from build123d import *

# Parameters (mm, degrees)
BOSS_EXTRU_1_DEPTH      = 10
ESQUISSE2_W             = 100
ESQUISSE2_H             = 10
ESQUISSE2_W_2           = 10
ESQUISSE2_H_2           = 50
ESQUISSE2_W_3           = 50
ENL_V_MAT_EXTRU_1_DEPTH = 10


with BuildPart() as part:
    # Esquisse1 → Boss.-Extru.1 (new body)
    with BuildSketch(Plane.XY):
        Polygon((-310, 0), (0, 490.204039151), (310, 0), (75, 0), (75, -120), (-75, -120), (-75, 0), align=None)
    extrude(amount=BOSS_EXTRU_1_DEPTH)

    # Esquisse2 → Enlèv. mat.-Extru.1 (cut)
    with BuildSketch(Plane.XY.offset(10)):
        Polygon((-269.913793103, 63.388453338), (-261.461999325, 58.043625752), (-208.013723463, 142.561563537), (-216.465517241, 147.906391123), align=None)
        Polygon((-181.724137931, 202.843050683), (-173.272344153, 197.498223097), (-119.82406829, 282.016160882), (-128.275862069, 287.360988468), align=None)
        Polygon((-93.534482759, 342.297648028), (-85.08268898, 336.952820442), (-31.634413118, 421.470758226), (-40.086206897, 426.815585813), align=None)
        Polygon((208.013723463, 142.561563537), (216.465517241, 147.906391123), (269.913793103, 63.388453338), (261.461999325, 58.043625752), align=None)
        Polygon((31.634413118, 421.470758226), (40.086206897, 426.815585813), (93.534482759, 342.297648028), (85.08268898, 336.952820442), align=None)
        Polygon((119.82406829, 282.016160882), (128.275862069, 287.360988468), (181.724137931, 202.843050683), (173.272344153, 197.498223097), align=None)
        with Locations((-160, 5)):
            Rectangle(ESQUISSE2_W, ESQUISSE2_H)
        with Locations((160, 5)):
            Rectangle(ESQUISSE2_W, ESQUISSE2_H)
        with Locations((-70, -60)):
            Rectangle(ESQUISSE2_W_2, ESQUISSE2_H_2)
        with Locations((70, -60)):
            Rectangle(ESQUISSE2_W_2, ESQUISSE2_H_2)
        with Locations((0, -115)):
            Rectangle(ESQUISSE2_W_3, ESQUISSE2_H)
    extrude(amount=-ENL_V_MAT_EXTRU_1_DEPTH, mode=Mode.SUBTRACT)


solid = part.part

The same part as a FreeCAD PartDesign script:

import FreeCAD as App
import Part
import Sketcher

V = App.Vector
Q = App.Units.Quantity

doc = App.newDocument("Part")
body = doc.addObject("PartDesign::Body", "Body")

sketch1 = body.newObject("Sketcher::SketchObject", "Sketch")
sketch1.AttachmentSupport = (doc.getObject("XY_Plane"), [""])
sketch1.MapMode = "FlatFace"
sketch1.addGeometry([
    Part.LineSegment(V(0, 490, 0), V(-310, 0, 0)),
    Part.LineSegment(V(-310, 0, 0), V(-75, 0, 0)),
    Part.LineSegment(V(-75, 0, 0), V(-75, -120, 0)),
    Part.LineSegment(V(-75, -120, 0), V(75, -120, 0)),
    Part.LineSegment(V(75, -120, 0), V(75, 0, 0)),
    Part.LineSegment(V(75, 0, 0), V(310, 0, 0)),
    Part.LineSegment(V(310, 0, 0), V(0, 490, 0)),
], False)
sketch1.addConstraint([
    Sketcher.Constraint("Coincident", 0, 2, 1, 1),
    Sketcher.Constraint("Coincident", 1, 2, 2, 1),
    Sketcher.Constraint("Coincident", 2, 2, 3, 1),
    Sketcher.Constraint("Coincident", 3, 2, 4, 1),
    Sketcher.Constraint("Coincident", 4, 2, 5, 1),
    Sketcher.Constraint("Coincident", 5, 2, 6, 1),
    Sketcher.Constraint("Coincident", 6, 2, 0, 1),
    Sketcher.Constraint("Horizontal", 1),
    Sketcher.Constraint("Vertical", 2),
    Sketcher.Constraint("Horizontal", 3),
    Sketcher.Constraint("Vertical", 4),
    Sketcher.Constraint("Horizontal", 5),
    Sketcher.Constraint("Symmetric", 1, 2, 4, 2, -1, 1),
    Sketcher.Constraint("Symmetric", 0, 2, 5, 2, -2),
    Sketcher.Constraint("PointOnObject", 6, 2, -2),
    Sketcher.Constraint("DistanceX", 1, 1, 1, 2, Q("235 mm")),
    Sketcher.Constraint("DistanceX", 3, 1, 3, 2, Q("150 mm")),
    Sketcher.Constraint("DistanceY", 2, 2, 2, 1, Q("120 mm")),
    Sketcher.Constraint("Distance", 0, Q("580 mm")),
])
pad1 = body.newObject("PartDesign::Pad", "Pad")
pad1.Profile = sketch1
pad1.Length = 10

sketch2 = body.newObject("Sketcher::SketchObject", "Sketch001")
sketch2.AttachmentSupport = (doc.getObject("XY_Plane"), [""])
sketch2.MapMode = "FlatFace"
sketch2.AttachmentOffset = App.Placement(V(0, 0, 10), App.Rotation())
sketch2.addGeometry([
    Part.LineSegment(V(-270, 63, 0), V(-261, 58, 0)),
    Part.LineSegment(V(-261, 58, 0), V(-208, 143, 0)),
    Part.LineSegment(V(-208, 143, 0), V(-216, 148, 0)),
    Part.LineSegment(V(-216, 148, 0), V(-270, 63, 0)),
    Part.LineSegment(V(-182, 203, 0), V(-173, 197, 0)),
    Part.LineSegment(V(-173, 197, 0), V(-120, 282, 0)),
    Part.LineSegment(V(-120, 282, 0), V(-128, 287, 0)),
    Part.LineSegment(V(-128, 287, 0), V(-182, 203, 0)),
    Part.LineSegment(V(-94, 342, 0), V(-85, 337, 0)),
    Part.LineSegment(V(-85, 337, 0), V(-32, 421, 0)),
    Part.LineSegment(V(-32, 421, 0), V(-40, 427, 0)),
    Part.LineSegment(V(-40, 427, 0), V(-94, 342, 0)),
    Part.LineSegment(V(216, 148, 0), V(208, 143, 0)),
    Part.LineSegment(V(208, 143, 0), V(261, 58, 0)),
    Part.LineSegment(V(261, 58, 0), V(270, 63, 0)),
    Part.LineSegment(V(270, 63, 0), V(216, 148, 0)),
    Part.LineSegment(V(40, 427, 0), V(32, 421, 0)),
    Part.LineSegment(V(32, 421, 0), V(85, 337, 0)),
    Part.LineSegment(V(85, 337, 0), V(94, 342, 0)),
    Part.LineSegment(V(94, 342, 0), V(40, 427, 0)),
    Part.LineSegment(V(128, 287, 0), V(120, 282, 0)),
    Part.LineSegment(V(120, 282, 0), V(173, 197, 0)),
    Part.LineSegment(V(173, 197, 0), V(182, 203, 0)),
    Part.LineSegment(V(182, 203, 0), V(128, 287, 0)),
    Part.LineSegment(V(-210, 10, 0), V(-210, 0, 0)),
    Part.LineSegment(V(-210, 0, 0), V(-110, 0, 0)),
    Part.LineSegment(V(-110, 0, 0), V(-110, 10, 0)),
    Part.LineSegment(V(-110, 10, 0), V(-210, 10, 0)),
    Part.LineSegment(V(110, 10, 0), V(110, 0, 0)),
    Part.LineSegment(V(110, 0, 0), V(210, 0, 0)),
    Part.LineSegment(V(210, 0, 0), V(210, 10, 0)),
    Part.LineSegment(V(210, 10, 0), V(110, 10, 0)),
    Part.LineSegment(V(-75, -35, 0), V(-75, -85, 0)),
    Part.LineSegment(V(-75, -85, 0), V(-65, -85, 0)),
    Part.LineSegment(V(-65, -85, 0), V(-65, -35, 0)),
    Part.LineSegment(V(-65, -35, 0), V(-75, -35, 0)),
    Part.LineSegment(V(65, -35, 0), V(65, -85, 0)),
    Part.LineSegment(V(65, -85, 0), V(75, -85, 0)),
    Part.LineSegment(V(75, -85, 0), V(75, -35, 0)),
    Part.LineSegment(V(75, -35, 0), V(65, -35, 0)),
    Part.LineSegment(V(-25, -110, 0), V(-25, -120, 0)),
    Part.LineSegment(V(-25, -120, 0), V(25, -120, 0)),
    Part.LineSegment(V(25, -120, 0), V(25, -110, 0)),
    Part.LineSegment(V(25, -110, 0), V(-25, -110, 0)),
], False)
sketch2.addConstraint([
    Sketcher.Constraint("Coincident", 0, 2, 1, 1),
    Sketcher.Constraint("Coincident", 1, 2, 2, 1),
    Sketcher.Constraint("Coincident", 2, 2, 3, 1),
    Sketcher.Constraint("Coincident", 3, 2, 0, 1),
    Sketcher.Constraint("Coincident", 4, 2, 5, 1),
    Sketcher.Constraint("Coincident", 5, 2, 6, 1),
    Sketcher.Constraint("Coincident", 6, 2, 7, 1),
    Sketcher.Constraint("Coincident", 7, 2, 4, 1),
    Sketcher.Constraint("Coincident", 8, 2, 9, 1),
    Sketcher.Constraint("Coincident", 9, 2, 10, 1),
    Sketcher.Constraint("Coincident", 10, 2, 11, 1),
    Sketcher.Constraint("Coincident", 11, 2, 8, 1),
    Sketcher.Constraint("Coincident", 12, 2, 13, 1),
    Sketcher.Constraint("Coincident", 13, 2, 14, 1),
    Sketcher.Constraint("Coincident", 14, 2, 15, 1),
    Sketcher.Constraint("Coincident", 15, 2, 12, 1),
    Sketcher.Constraint("Coincident", 16, 2, 17, 1),
    Sketcher.Constraint("Coincident", 17, 2, 18, 1),
    Sketcher.Constraint("Coincident", 18, 2, 19, 1),
    Sketcher.Constraint("Coincident", 19, 2, 16, 1),
    Sketcher.Constraint("Coincident", 20, 2, 21, 1),
    Sketcher.Constraint("Coincident", 21, 2, 22, 1),
    Sketcher.Constraint("Coincident", 22, 2, 23, 1),
    Sketcher.Constraint("Coincident", 23, 2, 20, 1),
    Sketcher.Constraint("Coincident", 24, 2, 25, 1),
    Sketcher.Constraint("Coincident", 25, 2, 26, 1),
    Sketcher.Constraint("Coincident", 26, 2, 27, 1),
    Sketcher.Constraint("Coincident", 27, 2, 24, 1),
    Sketcher.Constraint("Coincident", 28, 2, 29, 1),
    Sketcher.Constraint("Coincident", 29, 2, 30, 1),
    Sketcher.Constraint("Coincident", 30, 2, 31, 1),
    Sketcher.Constraint("Coincident", 31, 2, 28, 1),
    Sketcher.Constraint("Coincident", 32, 2, 33, 1),
    Sketcher.Constraint("Coincident", 33, 2, 34, 1),
    Sketcher.Constraint("Coincident", 34, 2, 35, 1),
    Sketcher.Constraint("Coincident", 35, 2, 32, 1),
    Sketcher.Constraint("Coincident", 36, 2, 37, 1),
    Sketcher.Constraint("Coincident", 37, 2, 38, 1),
    Sketcher.Constraint("Coincident", 38, 2, 39, 1),
    Sketcher.Constraint("Coincident", 39, 2, 36, 1),
    Sketcher.Constraint("Coincident", 40, 2, 41, 1),
    Sketcher.Constraint("Coincident", 41, 2, 42, 1),
    Sketcher.Constraint("Coincident", 42, 2, 43, 1),
    Sketcher.Constraint("Coincident", 43, 2, 40, 1),
    Sketcher.Constraint("Vertical", 24),
    Sketcher.Constraint("Horizontal", 25),
    Sketcher.Constraint("Vertical", 26),
    Sketcher.Constraint("Horizontal", 27),
    Sketcher.Constraint("Vertical", 28),
    Sketcher.Constraint("Horizontal", 29),
    Sketcher.Constraint("Vertical", 30),
    Sketcher.Constraint("Horizontal", 31),
    Sketcher.Constraint("Vertical", 32),
    Sketcher.Constraint("Horizontal", 33),
    Sketcher.Constraint("Vertical", 34),
    Sketcher.Constraint("Horizontal", 35),
    Sketcher.Constraint("Vertical", 36),
    Sketcher.Constraint("Horizontal", 37),
    Sketcher.Constraint("Vertical", 38),
    Sketcher.Constraint("Horizontal", 39),
    Sketcher.Constraint("Vertical", 40),
    Sketcher.Constraint("Horizontal", 41),
    Sketcher.Constraint("Vertical", 42),
    Sketcher.Constraint("Horizontal", 43),
    Sketcher.Constraint("Symmetric", 25, 2, 28, 2, -1, 1),
    Sketcher.Constraint("Symmetric", 1, 2, 12, 2, -2),
    Sketcher.Constraint("Symmetric", 0, 2, 13, 2, -2),
    Sketcher.Constraint("Symmetric", 3, 2, 14, 2, -2),
    Sketcher.Constraint("Symmetric", 2, 2, 15, 2, -2),
    Sketcher.Constraint("Symmetric", 9, 2, 16, 2, -2),
    Sketcher.Constraint("Symmetric", 8, 2, 17, 2, -2),
    Sketcher.Constraint("Symmetric", 11, 2, 18, 2, -2),
    Sketcher.Constraint("Symmetric", 10, 2, 19, 2, -2),
    Sketcher.Constraint("Symmetric", 5, 2, 20, 2, -2),
    Sketcher.Constraint("Symmetric", 4, 2, 21, 2, -2),
    Sketcher.Constraint("Symmetric", 7, 2, 22, 2, -2),
    Sketcher.Constraint("Symmetric", 6, 2, 23, 2, -2),
    Sketcher.Constraint("Symmetric", 24, 2, 29, 2, -2),
    Sketcher.Constraint("Symmetric", 33, 2, 36, 2, -2),
    Sketcher.Constraint("Symmetric", 35, 2, 38, 2, -2),
    Sketcher.Constraint("Perpendicular", 0, 1),
    Sketcher.Constraint("Perpendicular", 1, 2),
    Sketcher.Constraint("Perpendicular", 2, 3),
    Sketcher.Constraint("Perpendicular", 3, 4),
    Sketcher.Constraint("Perpendicular", 4, 5),
    Sketcher.Constraint("Perpendicular", 5, 6),
    Sketcher.Constraint("Perpendicular", 6, 7),
    Sketcher.Constraint("Perpendicular", 7, 8),
    Sketcher.Constraint("Perpendicular", 8, 9),
    Sketcher.Constraint("Perpendicular", 9, 10),
    Sketcher.Constraint("Perpendicular", 10, 11),
    Sketcher.Constraint("Horizontal", 27, 2, 30, 2),
    Sketcher.Constraint("Equal", 39, 24),
    Sketcher.Constraint("Equal", 43, 32),
    Sketcher.Constraint("Equal", 30, 40),
    Sketcher.Constraint("Equal", 2, 4),
    Sketcher.Constraint("Equal", 3, 5),
    Sketcher.Constraint("Equal", 6, 8),
    Sketcher.Constraint("Equal", 7, 9),
    Sketcher.Constraint("DistanceX", 25, 1, 25, 2, Q("100 mm")),
    Sketcher.Constraint("DistanceX", 33, 1, 33, 2, Q("10 mm")),
    Sketcher.Constraint("DistanceX", 41, 1, 41, 2, Q("50 mm")),
    Sketcher.Constraint("Distance", 0, Q("10 mm")),
    Sketcher.Constraint("Distance", 1, Q("100 mm")),
    Sketcher.Constraint("DistanceX", 24, 2, -1, 1, Q("210 mm")),
    Sketcher.Constraint("DistanceX", 32, 2, -1, 1, Q("75 mm")),
    Sketcher.Constraint("DistanceY", 32, 2, -1, 1, Q("85 mm")),
    Sketcher.Constraint("DistanceX", 40, 2, -1, 1, Q("25 mm")),
    Sketcher.Constraint("DistanceY", 40, 2, -1, 1, Q("120 mm")),
    Sketcher.Constraint("DistanceX", 0, 2, -1, 1, Q("261.461999 mm")),
    Sketcher.Constraint("DistanceY", -1, 1, 2, 2, Q("147.906391 mm")),
    Sketcher.Constraint("DistanceX", 5, 2, -1, 1, Q("119.824068 mm")),
    Sketcher.Constraint("DistanceY", -1, 1, 5, 2, Q("282.016161 mm")),
    Sketcher.Constraint("DistanceY", -1, 1, 6, 2, Q("287.360988 mm")),
    Sketcher.Constraint("DistanceX", 8, 2, -1, 1, Q("85.082689 mm")),
    Sketcher.Constraint("DistanceY", -1, 1, 8, 2, Q("336.95282 mm")),
])
pocket1 = body.newObject("PartDesign::Pocket", "Pocket")
pocket1.Profile = sketch2
pocket1.Length = 10

doc.recompute()
